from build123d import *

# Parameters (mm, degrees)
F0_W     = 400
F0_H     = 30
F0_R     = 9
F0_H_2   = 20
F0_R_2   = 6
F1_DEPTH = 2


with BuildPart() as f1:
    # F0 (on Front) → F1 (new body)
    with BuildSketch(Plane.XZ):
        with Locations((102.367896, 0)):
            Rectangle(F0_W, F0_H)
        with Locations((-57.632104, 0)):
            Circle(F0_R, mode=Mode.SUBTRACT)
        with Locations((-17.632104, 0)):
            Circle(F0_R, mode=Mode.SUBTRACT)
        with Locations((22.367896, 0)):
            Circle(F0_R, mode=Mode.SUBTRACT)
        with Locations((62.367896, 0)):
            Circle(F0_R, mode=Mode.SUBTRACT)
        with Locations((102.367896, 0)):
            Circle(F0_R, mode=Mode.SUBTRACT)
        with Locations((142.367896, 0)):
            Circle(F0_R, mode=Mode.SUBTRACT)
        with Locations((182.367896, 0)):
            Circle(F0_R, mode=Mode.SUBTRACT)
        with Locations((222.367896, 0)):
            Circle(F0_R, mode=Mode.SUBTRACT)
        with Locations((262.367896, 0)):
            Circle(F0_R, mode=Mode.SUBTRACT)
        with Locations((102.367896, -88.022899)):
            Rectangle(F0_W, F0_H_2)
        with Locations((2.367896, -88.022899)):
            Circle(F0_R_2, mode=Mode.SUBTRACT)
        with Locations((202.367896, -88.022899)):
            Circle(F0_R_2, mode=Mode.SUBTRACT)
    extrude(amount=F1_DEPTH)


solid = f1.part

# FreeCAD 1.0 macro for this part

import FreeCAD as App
import Part
import Sketcher
from FreeCAD import Vector


def add_polygon(sketch, points):
    """Adds a closed chain of lines whose ends are joined by coincident constraints."""
    first, n = sketch.GeometryCount, len(points)
    for a, b in zip(points, points[1:] + points[:1]):
        sketch.addGeometry(Part.LineSegment(App.Vector(*a, 0), App.Vector(*b, 0)), False)
    for i in range(n):
        sketch.addConstraint(Sketcher.Constraint("Coincident", first + i, 2, first + (i + 1) % n, 1))

doc = App.newDocument("Part")
body = doc.addObject("PartDesign::Body", "Body")
body.AllowCompound = True

# Sketch on XZ plane
sketch1 = body.newObject("Sketcher::SketchObject", "Sketch")
sketch1.AttachmentSupport = (doc.getObject("XZ_Plane"), [""])
sketch1.MapMode = "FlatFace"
add_polygon(sketch1, [(-98, 15), (-98, -15), (302, -15), (302, 15)])  # lines 0-3
sketch1.addGeometry(Part.Circle(Vector(-58, 0, 0), Vector(0, 0, 1), 9), False)  # 4
sketch1.addGeometry(Part.Circle(Vector(-18, 0, 0), Vector(0, 0, 1), 9), False)  # 5
sketch1.addGeometry(Part.Circle(Vector(22, 0, 0), Vector(0, 0, 1), 9), False)  # 6
sketch1.addGeometry(Part.Circle(Vector(62, 0, 0), Vector(0, 0, 1), 9), False)  # 7
sketch1.addGeometry(Part.Circle(Vector(102, 0, 0), Vector(0, 0, 1), 9), False)  # 8
sketch1.addGeometry(Part.Circle(Vector(142, 0, 0), Vector(0, 0, 1), 9), False)  # 9
sketch1.addGeometry(Part.Circle(Vector(182, 0, 0), Vector(0, 0, 1), 9), False)  # 10
sketch1.addGeometry(Part.Circle(Vector(222, 0, 0), Vector(0, 0, 1), 9), False)  # 11
sketch1.addGeometry(Part.Circle(Vector(262, 0, 0), Vector(0, 0, 1), 9), False)  # 12
add_polygon(sketch1, [(-98, -78), (-98, -98), (302, -98), (302, -78)])  # lines 13-16
sketch1.addGeometry(Part.Circle(Vector(2, -88, 0), Vector(0, 0, 1), 6), False)  # 17
sketch1.addGeometry(Part.Circle(Vector(202, -88, 0), Vector(0, 0, 1), 6), False)  # 18
sketch1.addConstraint([
    Sketcher.Constraint("Vertical", 0),
    Sketcher.Constraint("Horizontal", 1),
    Sketcher.Constraint("Vertical", 2),
    Sketcher.Constraint("Horizontal", 3),
    Sketcher.Constraint("Vertical", 13),
    Sketcher.Constraint("Horizontal", 14),
    Sketcher.Constraint("Vertical", 15),
    Sketcher.Constraint("Horizontal", 16),
    Sketcher.Constraint("Equal", 4, 5),
    Sketcher.Constraint("Equal", 5, 6),
    Sketcher.Constraint("Equal", 6, 7),
    Sketcher.Constraint("Equal", 7, 8),
    Sketcher.Constraint("Equal", 8, 9),
    Sketcher.Constraint("Equal", 9, 10),
    Sketcher.Constraint("Equal", 10, 11),
    Sketcher.Constraint("Equal", 11, 12),
    Sketcher.Constraint("Equal", 17, 18),
    Sketcher.Constraint("PointOnObject", 4, 3, -1),
    Sketcher.Constraint("PointOnObject", 5, 3, -1),
    Sketcher.Constraint("PointOnObject", 6, 3, -1),
    Sketcher.Constraint("PointOnObject", 7, 3, -1),
    Sketcher.Constraint("PointOnObject", 8, 3, -1),
    Sketcher.Constraint("PointOnObject", 9, 3, -1),
    Sketcher.Constraint("PointOnObject", 10, 3, -1),
    Sketcher.Constraint("PointOnObject", 11, 3, -1),
    Sketcher.Constraint("PointOnObject", 12, 3, -1),
    Sketcher.Constraint("Horizontal", 17, 3, 18, 3),
    Sketcher.Constraint("Vertical", 3, 2, 13, 2),
    Sketcher.Constraint("Vertical", 2, 2, 14, 2),
    Sketcher.Constraint("Diameter", 4, 18.0),
    Sketcher.Constraint("Diameter", 17, 12.0),
    Sketcher.Constraint("DistanceX", 1, 1, 1, 2, 400.0),
    Sketcher.Constraint("DistanceY", 0, 2, 0, 1, 30.0),
    Sketcher.Constraint("DistanceY", 13, 2, 13, 1, 20.0),
    Sketcher.Constraint("DistanceY", 0, 2, -1, 1, 15.0),
    Sketcher.Constraint("DistanceX", 4, 3, 5, 3, 40.0),
    Sketcher.Constraint("DistanceX", 5, 3, 6, 3, 40.0),
    Sketcher.Constraint("DistanceX", 6, 3, 7, 3, 40.0),
    Sketcher.Constraint("DistanceX", 7, 3, 8, 3, 40.0),
    Sketcher.Constraint("DistanceX", 8, 3, 9, 3, 40.0),
    Sketcher.Constraint("DistanceX", 9, 3, 10, 3, 40.0),
    Sketcher.Constraint("DistanceX", 10, 3, 11, 3, 40.0),
    Sketcher.Constraint("DistanceX", 11, 3, 12, 3, 40.0),
    Sketcher.Constraint("DistanceX", 5, 3, 17, 3, 20.0),
    Sketcher.Constraint("DistanceX", 10, 3, 18, 3, 20.0),
    Sketcher.Constraint("DistanceX", 0, 2, 4, 3, 40.0),
    Sketcher.Constraint("DistanceY", 13, 2, 17, 3, 10.0),
    Sketcher.Constraint("DistanceY", 17, 3, -1, 1, 88.022899),
    Sketcher.Constraint("DistanceX", 4, 3, -1, 1, 57.632104),
])
pad1 = body.newObject("PartDesign::Pad", "Pad")
pad1.Profile = sketch1
pad1.Length = 2

doc.recompute()
